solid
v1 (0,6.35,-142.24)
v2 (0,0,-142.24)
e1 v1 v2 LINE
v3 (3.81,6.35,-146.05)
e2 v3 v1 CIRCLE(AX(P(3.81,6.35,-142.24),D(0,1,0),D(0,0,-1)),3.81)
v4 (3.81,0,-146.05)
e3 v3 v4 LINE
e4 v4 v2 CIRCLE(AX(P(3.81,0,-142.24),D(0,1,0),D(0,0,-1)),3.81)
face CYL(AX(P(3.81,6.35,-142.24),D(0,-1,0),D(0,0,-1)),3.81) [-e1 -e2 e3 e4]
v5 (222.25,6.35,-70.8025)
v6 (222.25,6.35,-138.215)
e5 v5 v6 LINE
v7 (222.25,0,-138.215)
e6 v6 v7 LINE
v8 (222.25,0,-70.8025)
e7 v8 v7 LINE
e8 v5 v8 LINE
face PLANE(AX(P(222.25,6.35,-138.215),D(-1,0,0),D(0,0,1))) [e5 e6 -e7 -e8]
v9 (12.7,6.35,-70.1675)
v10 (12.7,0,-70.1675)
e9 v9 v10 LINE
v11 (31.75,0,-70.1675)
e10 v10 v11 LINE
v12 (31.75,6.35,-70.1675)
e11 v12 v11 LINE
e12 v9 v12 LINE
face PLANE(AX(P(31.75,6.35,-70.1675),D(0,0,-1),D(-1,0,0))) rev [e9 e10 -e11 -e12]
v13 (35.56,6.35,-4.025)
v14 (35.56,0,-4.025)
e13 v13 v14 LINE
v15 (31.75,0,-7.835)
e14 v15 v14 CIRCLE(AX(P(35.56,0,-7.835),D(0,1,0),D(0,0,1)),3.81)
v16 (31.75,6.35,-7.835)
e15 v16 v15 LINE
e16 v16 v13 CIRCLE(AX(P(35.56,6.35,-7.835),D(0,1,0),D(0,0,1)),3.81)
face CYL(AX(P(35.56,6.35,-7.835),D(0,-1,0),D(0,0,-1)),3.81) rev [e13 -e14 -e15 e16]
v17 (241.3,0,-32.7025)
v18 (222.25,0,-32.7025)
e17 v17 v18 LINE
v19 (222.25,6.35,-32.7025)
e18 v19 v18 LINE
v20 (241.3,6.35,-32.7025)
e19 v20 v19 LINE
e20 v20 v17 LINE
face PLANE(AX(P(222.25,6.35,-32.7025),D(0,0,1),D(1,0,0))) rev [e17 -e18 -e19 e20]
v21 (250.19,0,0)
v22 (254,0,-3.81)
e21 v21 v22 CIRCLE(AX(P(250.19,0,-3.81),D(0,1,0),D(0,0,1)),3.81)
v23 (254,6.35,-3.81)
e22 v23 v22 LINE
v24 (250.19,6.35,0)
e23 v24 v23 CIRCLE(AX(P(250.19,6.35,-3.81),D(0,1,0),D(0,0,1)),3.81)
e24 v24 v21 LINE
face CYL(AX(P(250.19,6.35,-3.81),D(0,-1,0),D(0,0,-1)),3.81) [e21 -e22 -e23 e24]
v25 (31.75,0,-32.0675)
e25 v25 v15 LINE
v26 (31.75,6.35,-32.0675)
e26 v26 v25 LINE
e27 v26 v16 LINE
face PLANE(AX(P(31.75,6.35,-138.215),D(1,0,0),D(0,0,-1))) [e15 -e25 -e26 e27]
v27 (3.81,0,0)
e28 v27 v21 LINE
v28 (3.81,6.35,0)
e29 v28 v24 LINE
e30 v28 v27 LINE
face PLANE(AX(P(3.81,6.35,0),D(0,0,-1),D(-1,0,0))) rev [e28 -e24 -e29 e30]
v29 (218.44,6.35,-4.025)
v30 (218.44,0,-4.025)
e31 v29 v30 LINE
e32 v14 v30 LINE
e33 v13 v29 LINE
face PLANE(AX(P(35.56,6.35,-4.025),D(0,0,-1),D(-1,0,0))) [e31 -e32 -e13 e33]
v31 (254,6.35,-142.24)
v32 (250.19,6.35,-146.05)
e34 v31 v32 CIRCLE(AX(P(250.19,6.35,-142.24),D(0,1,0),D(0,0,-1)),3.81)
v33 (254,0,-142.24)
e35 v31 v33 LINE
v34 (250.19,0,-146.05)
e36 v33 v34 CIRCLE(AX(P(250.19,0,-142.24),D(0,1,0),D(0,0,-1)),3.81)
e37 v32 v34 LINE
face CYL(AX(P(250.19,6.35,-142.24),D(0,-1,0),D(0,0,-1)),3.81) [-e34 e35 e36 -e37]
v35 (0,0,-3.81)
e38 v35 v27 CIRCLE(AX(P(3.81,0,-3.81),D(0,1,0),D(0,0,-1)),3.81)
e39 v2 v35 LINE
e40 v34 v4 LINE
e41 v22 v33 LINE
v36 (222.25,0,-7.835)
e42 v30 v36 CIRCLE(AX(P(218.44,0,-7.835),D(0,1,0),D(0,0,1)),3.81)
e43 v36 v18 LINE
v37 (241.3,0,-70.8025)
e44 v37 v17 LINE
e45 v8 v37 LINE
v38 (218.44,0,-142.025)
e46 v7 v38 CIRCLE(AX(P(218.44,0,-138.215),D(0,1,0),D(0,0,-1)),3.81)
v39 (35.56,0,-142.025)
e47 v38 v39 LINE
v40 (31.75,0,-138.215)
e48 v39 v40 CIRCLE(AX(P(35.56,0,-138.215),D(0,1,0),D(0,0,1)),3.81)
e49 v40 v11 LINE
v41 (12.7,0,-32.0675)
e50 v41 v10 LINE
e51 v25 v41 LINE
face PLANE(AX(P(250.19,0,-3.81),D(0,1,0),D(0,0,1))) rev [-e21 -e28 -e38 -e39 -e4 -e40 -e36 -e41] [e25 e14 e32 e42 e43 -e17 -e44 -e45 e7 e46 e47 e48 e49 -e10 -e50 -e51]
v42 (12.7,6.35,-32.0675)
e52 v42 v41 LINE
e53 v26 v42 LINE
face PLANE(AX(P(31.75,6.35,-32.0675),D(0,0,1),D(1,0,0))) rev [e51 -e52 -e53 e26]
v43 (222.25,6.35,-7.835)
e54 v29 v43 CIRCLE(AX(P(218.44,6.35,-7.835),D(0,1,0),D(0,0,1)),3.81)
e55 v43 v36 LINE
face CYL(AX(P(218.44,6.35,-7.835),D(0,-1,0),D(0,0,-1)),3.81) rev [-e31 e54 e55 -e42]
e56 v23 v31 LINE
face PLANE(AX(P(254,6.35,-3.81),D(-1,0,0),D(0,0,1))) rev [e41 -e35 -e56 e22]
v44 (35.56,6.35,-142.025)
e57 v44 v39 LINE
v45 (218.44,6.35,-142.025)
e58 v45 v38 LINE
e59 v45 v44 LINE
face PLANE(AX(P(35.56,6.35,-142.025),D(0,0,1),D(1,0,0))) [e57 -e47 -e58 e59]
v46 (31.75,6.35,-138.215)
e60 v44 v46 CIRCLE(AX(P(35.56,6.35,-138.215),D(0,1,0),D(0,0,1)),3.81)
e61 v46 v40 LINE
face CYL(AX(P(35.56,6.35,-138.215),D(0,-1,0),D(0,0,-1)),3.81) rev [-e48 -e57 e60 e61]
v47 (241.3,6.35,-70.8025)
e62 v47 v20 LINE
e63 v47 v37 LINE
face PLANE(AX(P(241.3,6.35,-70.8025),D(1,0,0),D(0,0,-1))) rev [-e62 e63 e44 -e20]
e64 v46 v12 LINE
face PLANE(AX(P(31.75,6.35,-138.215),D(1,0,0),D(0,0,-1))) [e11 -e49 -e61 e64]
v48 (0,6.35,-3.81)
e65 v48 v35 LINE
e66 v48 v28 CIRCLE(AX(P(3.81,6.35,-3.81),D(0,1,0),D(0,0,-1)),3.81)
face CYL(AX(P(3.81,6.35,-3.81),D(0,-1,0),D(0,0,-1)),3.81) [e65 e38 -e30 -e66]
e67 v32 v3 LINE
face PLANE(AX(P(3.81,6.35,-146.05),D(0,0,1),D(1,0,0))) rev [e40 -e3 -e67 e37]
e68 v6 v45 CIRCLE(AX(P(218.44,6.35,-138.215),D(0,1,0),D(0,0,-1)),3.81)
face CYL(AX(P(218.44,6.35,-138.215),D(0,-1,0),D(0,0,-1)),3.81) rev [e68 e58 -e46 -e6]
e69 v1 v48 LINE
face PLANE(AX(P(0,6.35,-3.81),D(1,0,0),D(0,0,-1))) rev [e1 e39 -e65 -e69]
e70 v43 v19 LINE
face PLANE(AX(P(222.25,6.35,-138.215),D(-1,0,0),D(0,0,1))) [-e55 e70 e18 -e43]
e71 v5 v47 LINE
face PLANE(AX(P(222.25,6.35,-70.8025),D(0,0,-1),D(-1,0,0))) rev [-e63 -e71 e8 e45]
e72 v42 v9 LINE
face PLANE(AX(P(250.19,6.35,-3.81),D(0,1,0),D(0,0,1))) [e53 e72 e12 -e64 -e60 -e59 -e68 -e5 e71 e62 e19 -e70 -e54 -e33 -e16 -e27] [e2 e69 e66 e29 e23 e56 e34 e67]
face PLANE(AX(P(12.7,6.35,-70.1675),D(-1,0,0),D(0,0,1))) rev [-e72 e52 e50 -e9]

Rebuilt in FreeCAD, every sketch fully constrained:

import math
import FreeCAD as App
import Part
import Sketcher
from FreeCAD import Vector
Q = App.Units.Quantity


def add_polygon(sketch, points):
    """Adds a closed chain of lines whose ends are joined by coincident constraints."""
    first, n = sketch.GeometryCount, len(points)
    for a, b in zip(points, points[1:] + points[:1]):
        sketch.addGeometry(Part.LineSegment(App.Vector(*a, 0), App.Vector(*b, 0)), False)
    for i in range(n):
        sketch.addConstraint(Sketcher.Constraint("Coincident", first + i, 2, first + (i + 1) % n, 1))

doc = App.newDocument("Part")
body = doc.addObject("PartDesign::Body", "Body")

# Sketch on XZ plane
sketch1 = body.newObject("Sketcher::SketchObject", "Sketch")
sketch1.AttachmentSupport = (doc.getObject("XZ_Plane"), [""])
sketch1.MapMode = "FlatFace"
sketch1.addGeometry([
    Part.LineSegment(Vector(3.81, 0, 0), Vector(250.19, 0, 0)),  # 0
    Part.ArcOfCircle(Part.Circle(Vector(250.19, -3.81, 0), Vector(0, 0, 1), 3.81), math.radians(0), math.radians(90)),  # 1
    Part.LineSegment(Vector(254, -3.81, 0), Vector(254, -142.24, 0)),  # 2
    Part.ArcOfCircle(Part.Circle(Vector(250.19, -142.24, 0), Vector(0, 0, 1), 3.81), math.radians(-90), math.radians(0)),  # 3
    Part.LineSegment(Vector(250.19, -146.05, 0), Vector(3.81, -146.05, 0)),  # 4
    Part.ArcOfCircle(Part.Circle(Vector(3.81, -142.24, 0), Vector(0, 0, 1), 3.81), math.radians(-180), math.radians(-90)),  # 5
    Part.LineSegment(Vector(0, -142.24, 0), Vector(0, -3.81, 0)),  # 6
    Part.ArcOfCircle(Part.Circle(Vector(3.81, -3.81, 0), Vector(0, 0, 1), 3.81), math.radians(90), math.radians(180)),  # 7
    Part.ArcOfCircle(Part.Circle(Vector(35.56, -138.215, 0), Vector(0, 0, 1), 3.81), math.radians(-180), math.radians(-90)),  # 8
    Part.LineSegment(Vector(35.56, -142.025, 0), Vector(218.44, -142.025, 0)),  # 9
    Part.ArcOfCircle(Part.Circle(Vector(218.44, -138.215, 0), Vector(0, 0, 1), 3.81), math.radians(-90), math.radians(0)),  # 10
    Part.LineSegment(Vector(222.25, -138.215, 0), Vector(222.25, -7.835, 0)),  # 11
    Part.ArcOfCircle(Part.Circle(Vector(218.44, -7.835, 0), Vector(0, 0, 1), 3.81), math.radians(0), math.radians(90)),  # 12
    Part.LineSegment(Vector(218.44, -4.025, 0), Vector(35.56, -4.025, 0)),  # 13
    Part.ArcOfCircle(Part.Circle(Vector(35.56, -7.835, 0), Vector(0, 0, 1), 3.81), math.radians(90), math.radians(180)),  # 14
    Part.LineSegment(Vector(31.75, -7.835, 0), Vector(31.75, -138.215, 0)),  # 15
], False)
sketch1.addConstraint([
    Sketcher.Constraint("Tangent", 0, 2, 1, 2),
    Sketcher.Constraint("Tangent", 1, 1, 2, 1),
    Sketcher.Constraint("Tangent", 2, 2, 3, 2),
    Sketcher.Constraint("Tangent", 3, 1, 4, 1),
    Sketcher.Constraint("Tangent", 4, 2, 5, 2),
    Sketcher.Constraint("Tangent", 5, 1, 6, 1),
    Sketcher.Constraint("Tangent", 6, 2, 7, 2),
    Sketcher.Constraint("Tangent", 7, 1, 0, 1),
    Sketcher.Constraint("Tangent", 8, 2, 9, 1),
    Sketcher.Constraint("Tangent", 9, 2, 10, 1),
    Sketcher.Constraint("Tangent", 10, 2, 11, 1),
    Sketcher.Constraint("Tangent", 11, 2, 12, 1),
    Sketcher.Constraint("Tangent", 12, 2, 13, 1),
    Sketcher.Constraint("Tangent", 13, 2, 14, 1),
    Sketcher.Constraint("Tangent", 14, 2, 15, 1),
    Sketcher.Constraint("Tangent", 15, 2, 8, 1),
    Sketcher.Constraint("Horizontal", 0),
    Sketcher.Constraint("Vertical", 2),
    Sketcher.Constraint("Horizontal", 4),
    Sketcher.Constraint("Vertical", 6),
    Sketcher.Constraint("Horizontal", 9),
    Sketcher.Constraint("Vertical", 11),
    Sketcher.Constraint("Horizontal", 13),
    Sketcher.Constraint("Vertical", 15),
    Sketcher.Constraint("Equal", 1, 3),
    Sketcher.Constraint("Equal", 3, 5),
    Sketcher.Constraint("Equal", 5, 7),
    Sketcher.Constraint("Equal", 7, 8),
    Sketcher.Constraint("Equal", 8, 10),
    Sketcher.Constraint("Equal", 10, 12),
    Sketcher.Constraint("Equal", 12, 14),
    Sketcher.Constraint("PointOnObject", 0, 2, -1),
    Sketcher.Constraint("PointOnObject", 5, 1, -2),
    Sketcher.Constraint("Radius", 1, Q("0.15 in")),
    Sketcher.Constraint("DistanceX", 0, 1, 0, 2, Q("9.7 in")),
    Sketcher.Constraint("DistanceX", 9, 1, 9, 2, Q("7.2 in")),
    Sketcher.Constraint("DistanceY", 2, 2, 2, 1, Q("5.45 in")),
    Sketcher.Constraint("DistanceX", -1, 1, 8, 3, Q("1.4 in")),
    Sketcher.Constraint("DistanceY", 11, 1, 11, 2, Q("130.38 mm")),
    Sketcher.Constraint("DistanceY", 8, 3, -1, 1, Q("138.215 mm")),
])
pad1 = body.newObject("PartDesign::Pad", "Pad")
pad1.Profile = sketch1
pad1.Length = Q("0.25 in")
pad1.Reversed = True

# Sketch on XZ plane
sketch2 = body.newObject("Sketcher::SketchObject", "Sketch001")
sketch2.AttachmentSupport = (doc.getObject("XZ_Plane"), [""])
sketch2.MapMode = "FlatFace"
add_polygon(sketch2, [(222.25, -32.7025), (222.25, -70.8025), (241.3, -70.8025), (241.3, -32.7025)])  # lines 0-3
add_polygon(sketch2, [(12.7, -32.0675), (12.7, -70.1675), (31.75, -70.1675), (31.75, -32.0675)])  # lines 4-7
sketch2.addConstraint([
    Sketcher.Constraint("Vertical", 0),
    Sketcher.Constraint("Horizontal", 1),
    Sketcher.Constraint("Vertical", 2),
    Sketcher.Constraint("Horizontal", 3),
    Sketcher.Constraint("Vertical", 4),
    Sketcher.Constraint("Horizontal", 5),
    Sketcher.Constraint("Vertical", 6),
    Sketcher.Constraint("Horizontal", 7),
    Sketcher.Constraint("Equal", 3, 5),
    Sketcher.Constraint("Equal", 2, 4),
    Sketcher.Constraint("DistanceY", 0, 2, 0, 1, Q("1.5 in")),
    Sketcher.Constraint("DistanceX", 4, 2, 1, 2, Q("9 in")),
    Sketcher.Constraint("DistanceX", 1, 1, 1, 2, Q("0.75 in")),
    Sketcher.Constraint("DistanceX", -1, 1, 1, 2, Q("9.5 in")),
    Sketcher.Constraint("DistanceY", 0, 2, 4, 2, Q("0.025 in")),
    Sketcher.Constraint("DistanceY", 0, 2, -1, 1, Q("2.7875 in")),
])
pocket1 = body.newObject("PartDesign::Pocket", "Pocket")
pocket1.Profile = sketch2
pocket1.Type = "ThroughAll"

doc.recompute()
